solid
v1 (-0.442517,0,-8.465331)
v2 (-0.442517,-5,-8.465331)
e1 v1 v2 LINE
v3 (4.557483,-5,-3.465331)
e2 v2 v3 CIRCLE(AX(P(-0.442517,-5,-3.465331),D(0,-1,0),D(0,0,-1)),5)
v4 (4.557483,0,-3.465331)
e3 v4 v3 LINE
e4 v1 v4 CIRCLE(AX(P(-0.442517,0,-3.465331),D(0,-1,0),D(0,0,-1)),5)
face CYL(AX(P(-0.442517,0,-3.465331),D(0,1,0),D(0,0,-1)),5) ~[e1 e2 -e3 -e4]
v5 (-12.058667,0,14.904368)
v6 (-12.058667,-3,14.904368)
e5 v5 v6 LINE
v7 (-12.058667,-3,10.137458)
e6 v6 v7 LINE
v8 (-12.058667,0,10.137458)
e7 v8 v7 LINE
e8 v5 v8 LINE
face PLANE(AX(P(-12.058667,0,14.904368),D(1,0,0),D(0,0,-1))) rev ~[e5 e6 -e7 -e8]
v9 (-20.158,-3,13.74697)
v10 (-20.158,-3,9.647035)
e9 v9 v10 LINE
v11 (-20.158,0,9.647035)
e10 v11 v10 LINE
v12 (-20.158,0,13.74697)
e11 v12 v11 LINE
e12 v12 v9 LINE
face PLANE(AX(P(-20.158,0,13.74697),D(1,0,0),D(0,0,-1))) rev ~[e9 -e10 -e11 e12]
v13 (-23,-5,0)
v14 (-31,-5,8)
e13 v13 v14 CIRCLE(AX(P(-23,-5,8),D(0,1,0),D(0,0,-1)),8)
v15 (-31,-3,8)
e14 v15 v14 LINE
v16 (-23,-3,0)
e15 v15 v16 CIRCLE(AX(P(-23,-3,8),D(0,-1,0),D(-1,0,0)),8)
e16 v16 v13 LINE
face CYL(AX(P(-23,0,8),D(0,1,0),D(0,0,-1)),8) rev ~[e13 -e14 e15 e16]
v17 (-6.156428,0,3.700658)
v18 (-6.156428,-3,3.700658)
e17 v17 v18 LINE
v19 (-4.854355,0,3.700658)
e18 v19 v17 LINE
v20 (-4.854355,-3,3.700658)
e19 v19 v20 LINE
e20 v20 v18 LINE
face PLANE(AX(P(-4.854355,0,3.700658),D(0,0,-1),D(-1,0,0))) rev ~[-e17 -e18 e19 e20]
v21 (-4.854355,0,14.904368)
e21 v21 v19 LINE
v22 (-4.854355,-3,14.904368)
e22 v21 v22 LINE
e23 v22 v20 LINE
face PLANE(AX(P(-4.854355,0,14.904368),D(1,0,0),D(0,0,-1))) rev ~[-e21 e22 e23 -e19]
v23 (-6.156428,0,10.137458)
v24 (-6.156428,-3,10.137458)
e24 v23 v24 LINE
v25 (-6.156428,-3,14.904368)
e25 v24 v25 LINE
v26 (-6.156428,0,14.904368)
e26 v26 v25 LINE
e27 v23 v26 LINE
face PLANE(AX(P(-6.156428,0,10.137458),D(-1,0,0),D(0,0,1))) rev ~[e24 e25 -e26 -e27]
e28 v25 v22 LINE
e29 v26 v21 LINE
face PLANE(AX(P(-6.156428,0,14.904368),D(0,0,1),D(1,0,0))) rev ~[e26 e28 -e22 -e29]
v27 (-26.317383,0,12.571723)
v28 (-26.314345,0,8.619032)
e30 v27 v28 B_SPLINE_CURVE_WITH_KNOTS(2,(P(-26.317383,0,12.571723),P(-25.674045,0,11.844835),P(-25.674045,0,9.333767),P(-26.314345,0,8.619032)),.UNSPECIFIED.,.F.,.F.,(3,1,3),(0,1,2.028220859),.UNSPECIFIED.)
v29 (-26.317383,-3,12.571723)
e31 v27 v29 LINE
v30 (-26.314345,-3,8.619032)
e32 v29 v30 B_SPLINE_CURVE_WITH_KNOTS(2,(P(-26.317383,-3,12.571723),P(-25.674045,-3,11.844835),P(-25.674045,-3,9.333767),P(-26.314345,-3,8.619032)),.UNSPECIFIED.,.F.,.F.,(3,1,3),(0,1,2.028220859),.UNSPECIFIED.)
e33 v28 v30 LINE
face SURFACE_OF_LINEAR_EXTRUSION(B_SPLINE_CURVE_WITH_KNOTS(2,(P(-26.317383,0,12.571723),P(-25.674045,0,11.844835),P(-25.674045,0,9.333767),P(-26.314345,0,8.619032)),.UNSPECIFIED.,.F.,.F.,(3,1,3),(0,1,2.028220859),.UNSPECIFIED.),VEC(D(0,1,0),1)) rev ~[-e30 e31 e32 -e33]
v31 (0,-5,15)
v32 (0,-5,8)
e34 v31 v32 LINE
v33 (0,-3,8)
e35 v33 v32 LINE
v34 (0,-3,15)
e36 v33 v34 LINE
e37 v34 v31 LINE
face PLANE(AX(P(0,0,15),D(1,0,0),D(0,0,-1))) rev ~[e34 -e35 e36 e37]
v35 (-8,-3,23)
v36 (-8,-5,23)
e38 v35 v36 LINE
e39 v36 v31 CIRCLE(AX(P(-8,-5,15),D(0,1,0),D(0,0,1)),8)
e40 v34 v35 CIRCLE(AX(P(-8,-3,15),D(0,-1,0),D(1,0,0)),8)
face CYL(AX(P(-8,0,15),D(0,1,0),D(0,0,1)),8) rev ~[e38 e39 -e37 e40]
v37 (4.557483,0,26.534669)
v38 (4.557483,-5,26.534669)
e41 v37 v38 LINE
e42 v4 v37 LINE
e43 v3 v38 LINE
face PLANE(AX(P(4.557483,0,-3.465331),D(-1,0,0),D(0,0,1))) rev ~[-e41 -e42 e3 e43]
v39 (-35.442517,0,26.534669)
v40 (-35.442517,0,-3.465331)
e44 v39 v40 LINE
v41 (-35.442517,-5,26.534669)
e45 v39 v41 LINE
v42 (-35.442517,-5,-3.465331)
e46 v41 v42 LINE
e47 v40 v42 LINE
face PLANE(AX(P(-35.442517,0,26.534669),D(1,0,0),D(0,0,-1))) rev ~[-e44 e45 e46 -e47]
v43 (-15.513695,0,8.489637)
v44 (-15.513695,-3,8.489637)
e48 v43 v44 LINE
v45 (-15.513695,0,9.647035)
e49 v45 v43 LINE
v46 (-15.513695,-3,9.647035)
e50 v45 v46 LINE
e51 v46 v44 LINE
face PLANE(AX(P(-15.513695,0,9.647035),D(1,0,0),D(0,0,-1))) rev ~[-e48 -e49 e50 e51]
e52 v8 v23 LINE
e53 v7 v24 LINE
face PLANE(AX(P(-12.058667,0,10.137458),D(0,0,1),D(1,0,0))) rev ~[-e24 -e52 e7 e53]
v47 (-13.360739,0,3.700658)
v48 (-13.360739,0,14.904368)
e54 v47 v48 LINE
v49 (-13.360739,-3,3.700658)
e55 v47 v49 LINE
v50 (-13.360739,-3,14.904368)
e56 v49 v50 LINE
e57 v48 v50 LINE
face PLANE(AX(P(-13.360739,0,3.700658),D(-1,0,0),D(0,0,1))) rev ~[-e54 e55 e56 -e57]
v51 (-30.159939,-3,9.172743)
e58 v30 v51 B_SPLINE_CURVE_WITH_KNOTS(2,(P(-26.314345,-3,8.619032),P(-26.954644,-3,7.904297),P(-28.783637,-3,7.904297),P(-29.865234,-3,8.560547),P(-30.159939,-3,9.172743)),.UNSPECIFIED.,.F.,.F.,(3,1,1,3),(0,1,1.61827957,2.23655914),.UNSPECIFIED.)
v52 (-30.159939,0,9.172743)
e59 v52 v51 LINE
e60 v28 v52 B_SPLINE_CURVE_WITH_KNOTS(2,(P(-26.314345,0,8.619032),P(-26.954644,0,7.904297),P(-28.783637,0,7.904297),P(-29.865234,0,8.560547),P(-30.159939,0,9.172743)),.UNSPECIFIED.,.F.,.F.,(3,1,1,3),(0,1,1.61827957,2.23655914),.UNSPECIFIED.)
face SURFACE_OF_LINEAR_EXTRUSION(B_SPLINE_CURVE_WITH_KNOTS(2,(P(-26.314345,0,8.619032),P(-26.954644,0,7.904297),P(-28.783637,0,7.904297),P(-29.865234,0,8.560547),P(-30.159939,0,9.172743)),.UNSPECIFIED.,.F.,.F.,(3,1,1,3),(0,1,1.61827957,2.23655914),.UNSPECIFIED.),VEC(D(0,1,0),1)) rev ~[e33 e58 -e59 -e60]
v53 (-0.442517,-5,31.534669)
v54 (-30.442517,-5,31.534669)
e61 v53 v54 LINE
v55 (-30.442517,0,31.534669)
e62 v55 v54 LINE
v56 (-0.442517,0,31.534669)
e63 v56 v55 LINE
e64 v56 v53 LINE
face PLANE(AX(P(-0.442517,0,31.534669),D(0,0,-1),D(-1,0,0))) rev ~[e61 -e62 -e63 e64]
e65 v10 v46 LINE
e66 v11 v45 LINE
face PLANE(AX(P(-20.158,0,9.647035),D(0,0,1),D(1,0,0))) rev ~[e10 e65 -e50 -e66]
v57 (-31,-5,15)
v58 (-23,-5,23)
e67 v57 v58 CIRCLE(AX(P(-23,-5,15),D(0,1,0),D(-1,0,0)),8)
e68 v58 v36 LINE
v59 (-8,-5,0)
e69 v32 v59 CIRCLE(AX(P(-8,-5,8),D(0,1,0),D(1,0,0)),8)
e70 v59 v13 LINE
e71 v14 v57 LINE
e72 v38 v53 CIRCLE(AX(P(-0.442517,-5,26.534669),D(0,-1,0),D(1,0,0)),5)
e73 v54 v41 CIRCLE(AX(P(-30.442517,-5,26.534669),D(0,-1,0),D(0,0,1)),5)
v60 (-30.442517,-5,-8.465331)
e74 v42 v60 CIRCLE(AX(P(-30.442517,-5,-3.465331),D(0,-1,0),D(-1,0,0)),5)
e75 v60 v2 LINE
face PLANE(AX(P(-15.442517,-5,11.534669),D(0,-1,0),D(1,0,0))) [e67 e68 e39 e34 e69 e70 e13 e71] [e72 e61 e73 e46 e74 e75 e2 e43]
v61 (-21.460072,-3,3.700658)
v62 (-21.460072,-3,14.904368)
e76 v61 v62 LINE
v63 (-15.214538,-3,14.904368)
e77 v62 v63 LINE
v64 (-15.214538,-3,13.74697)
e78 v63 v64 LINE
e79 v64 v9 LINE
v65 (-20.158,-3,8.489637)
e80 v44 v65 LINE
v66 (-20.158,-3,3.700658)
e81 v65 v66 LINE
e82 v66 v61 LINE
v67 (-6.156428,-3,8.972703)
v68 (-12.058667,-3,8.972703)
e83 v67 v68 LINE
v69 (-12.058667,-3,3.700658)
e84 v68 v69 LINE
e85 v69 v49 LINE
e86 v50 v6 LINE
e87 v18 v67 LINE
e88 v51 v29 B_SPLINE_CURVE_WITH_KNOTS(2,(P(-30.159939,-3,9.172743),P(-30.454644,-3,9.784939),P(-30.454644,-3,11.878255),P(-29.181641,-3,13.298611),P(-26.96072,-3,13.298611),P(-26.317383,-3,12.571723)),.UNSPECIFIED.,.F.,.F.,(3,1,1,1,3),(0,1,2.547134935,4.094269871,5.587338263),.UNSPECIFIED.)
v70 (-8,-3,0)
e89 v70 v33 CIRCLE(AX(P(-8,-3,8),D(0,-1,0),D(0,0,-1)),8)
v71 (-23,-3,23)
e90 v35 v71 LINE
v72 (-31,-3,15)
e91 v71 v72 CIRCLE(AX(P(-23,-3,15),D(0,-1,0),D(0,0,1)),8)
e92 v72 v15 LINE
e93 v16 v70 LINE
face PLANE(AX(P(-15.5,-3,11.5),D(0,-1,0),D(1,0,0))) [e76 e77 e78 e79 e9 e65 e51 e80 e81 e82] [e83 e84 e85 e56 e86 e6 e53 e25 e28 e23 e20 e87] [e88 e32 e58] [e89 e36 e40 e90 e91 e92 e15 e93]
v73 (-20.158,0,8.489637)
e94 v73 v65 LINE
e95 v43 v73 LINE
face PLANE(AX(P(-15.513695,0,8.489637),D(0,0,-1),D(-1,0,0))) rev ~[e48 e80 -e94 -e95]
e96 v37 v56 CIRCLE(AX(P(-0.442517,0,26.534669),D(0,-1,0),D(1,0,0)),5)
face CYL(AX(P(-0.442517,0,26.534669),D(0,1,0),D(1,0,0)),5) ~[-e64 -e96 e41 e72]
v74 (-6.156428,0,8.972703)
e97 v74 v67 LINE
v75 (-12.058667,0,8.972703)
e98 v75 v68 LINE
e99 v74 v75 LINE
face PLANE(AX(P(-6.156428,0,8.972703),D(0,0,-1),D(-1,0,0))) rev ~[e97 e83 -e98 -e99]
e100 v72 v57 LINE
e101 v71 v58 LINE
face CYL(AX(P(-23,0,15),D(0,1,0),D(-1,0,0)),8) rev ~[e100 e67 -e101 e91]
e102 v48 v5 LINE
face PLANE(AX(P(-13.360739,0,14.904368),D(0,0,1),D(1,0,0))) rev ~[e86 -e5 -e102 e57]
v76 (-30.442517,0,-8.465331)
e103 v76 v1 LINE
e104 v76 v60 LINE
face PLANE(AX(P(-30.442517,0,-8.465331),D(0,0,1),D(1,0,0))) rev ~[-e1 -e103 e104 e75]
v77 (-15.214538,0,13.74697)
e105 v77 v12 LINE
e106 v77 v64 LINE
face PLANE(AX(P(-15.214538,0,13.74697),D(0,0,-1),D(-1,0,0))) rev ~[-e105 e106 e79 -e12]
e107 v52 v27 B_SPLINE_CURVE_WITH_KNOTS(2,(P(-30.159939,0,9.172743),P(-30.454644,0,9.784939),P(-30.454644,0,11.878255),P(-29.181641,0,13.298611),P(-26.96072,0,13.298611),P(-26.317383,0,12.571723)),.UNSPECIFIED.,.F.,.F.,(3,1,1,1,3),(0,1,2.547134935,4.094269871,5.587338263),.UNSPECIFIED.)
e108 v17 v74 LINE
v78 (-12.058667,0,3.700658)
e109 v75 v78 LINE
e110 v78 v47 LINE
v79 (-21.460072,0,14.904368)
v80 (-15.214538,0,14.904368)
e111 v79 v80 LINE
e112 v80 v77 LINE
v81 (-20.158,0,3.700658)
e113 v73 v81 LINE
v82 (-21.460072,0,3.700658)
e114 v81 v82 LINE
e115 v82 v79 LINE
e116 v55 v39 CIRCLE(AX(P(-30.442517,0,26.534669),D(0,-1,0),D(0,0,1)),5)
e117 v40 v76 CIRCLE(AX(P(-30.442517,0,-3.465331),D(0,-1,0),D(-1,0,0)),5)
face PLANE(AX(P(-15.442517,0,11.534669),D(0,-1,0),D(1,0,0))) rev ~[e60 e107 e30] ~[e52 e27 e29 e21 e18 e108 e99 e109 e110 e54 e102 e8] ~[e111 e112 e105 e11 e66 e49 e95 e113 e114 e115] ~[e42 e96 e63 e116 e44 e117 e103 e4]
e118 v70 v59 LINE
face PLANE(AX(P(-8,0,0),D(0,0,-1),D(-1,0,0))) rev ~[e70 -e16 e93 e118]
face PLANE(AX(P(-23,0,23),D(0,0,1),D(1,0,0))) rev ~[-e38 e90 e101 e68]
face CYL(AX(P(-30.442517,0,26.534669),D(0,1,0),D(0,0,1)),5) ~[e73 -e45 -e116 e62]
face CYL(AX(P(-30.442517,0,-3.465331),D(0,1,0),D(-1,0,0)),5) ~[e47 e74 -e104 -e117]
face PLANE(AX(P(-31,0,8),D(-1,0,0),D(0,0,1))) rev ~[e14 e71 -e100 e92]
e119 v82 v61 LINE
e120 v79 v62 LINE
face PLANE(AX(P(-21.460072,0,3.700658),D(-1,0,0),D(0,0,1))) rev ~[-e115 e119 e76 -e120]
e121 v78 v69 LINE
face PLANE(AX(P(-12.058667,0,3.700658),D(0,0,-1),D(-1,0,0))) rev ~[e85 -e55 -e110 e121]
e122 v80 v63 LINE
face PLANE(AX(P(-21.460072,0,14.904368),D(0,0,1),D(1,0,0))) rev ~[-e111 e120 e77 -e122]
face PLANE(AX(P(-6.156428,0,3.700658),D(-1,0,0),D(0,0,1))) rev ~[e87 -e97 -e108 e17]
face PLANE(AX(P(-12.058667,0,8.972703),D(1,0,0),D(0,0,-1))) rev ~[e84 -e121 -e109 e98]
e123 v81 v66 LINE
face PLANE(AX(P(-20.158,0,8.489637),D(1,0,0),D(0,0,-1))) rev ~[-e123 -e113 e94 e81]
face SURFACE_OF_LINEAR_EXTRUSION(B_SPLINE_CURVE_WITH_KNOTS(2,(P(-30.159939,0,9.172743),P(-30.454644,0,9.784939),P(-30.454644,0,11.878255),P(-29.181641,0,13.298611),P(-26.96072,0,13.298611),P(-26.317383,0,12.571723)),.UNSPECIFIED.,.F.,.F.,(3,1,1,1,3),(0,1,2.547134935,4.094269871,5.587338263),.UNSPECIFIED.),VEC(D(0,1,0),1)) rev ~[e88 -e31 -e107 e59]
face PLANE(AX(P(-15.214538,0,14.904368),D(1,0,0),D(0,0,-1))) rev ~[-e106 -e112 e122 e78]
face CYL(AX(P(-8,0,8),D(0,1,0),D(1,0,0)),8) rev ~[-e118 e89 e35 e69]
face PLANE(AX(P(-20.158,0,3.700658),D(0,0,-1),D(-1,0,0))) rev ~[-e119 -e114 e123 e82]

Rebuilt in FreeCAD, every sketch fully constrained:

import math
import FreeCAD as App
import Part
import Sketcher

V = App.Vector
Q = App.Units.Quantity

doc = App.newDocument("Part")
body = doc.addObject("PartDesign::Body", "Body")

# Sketch on XZ plane
sketch1 = body.newObject("Sketcher::SketchObject", "Sketch")
sketch1.AttachmentSupport = (doc.getObject("XZ_Plane"), [""])
sketch1.MapMode = "FlatFace"
sketch1.addGeometry([
    Part.LineSegment(V(-23, 0, 0), V(-8, 0, 0)),  # 0
    Part.ArcOfCircle(Part.Circle(V(-8, 8, 0), V(0, 0, 1), 8), math.radians(-90), math.radians(0)),  # 1
    Part.LineSegment(V(0, 8, 0), V(0, 15, 0)),  # 2
    Part.ArcOfCircle(Part.Circle(V(-8, 15, 0), V(0, 0, 1), 8), math.radians(0), math.radians(90)),  # 3
    Part.LineSegment(V(-8, 23, 0), V(-23, 23, 0)),  # 4
    Part.ArcOfCircle(Part.Circle(V(-23, 15, 0), V(0, 0, 1), 8), math.radians(90), math.radians(180)),  # 5
    Part.LineSegment(V(-31, 15, 0), V(-31, 8, 0)),  # 6
    Part.ArcOfCircle(Part.Circle(V(-23, 8, 0), V(0, 0, 1), 8), math.radians(180), math.radians(270)),  # 7
    Part.BSplineCurve([V(-30.159939, 9.172743, 0), V(-30.454644, 9.784939, 0), V(-30.454644, 11.878255, 0), V(-29.181641, 13.298611, 0), V(-26.96072, 13.298611, 0), V(-26.317383, 12.571723, 0)], [3, 1, 1, 1, 3], [0, 1, 2.547134935, 4.094269871, 5.587338263], False, 2, [1, 1, 1, 1, 1, 1], False),  # 8
    Part.BSplineCurve([V(-26.317383, 12.571723, 0), V(-25.674045, 11.844835, 0), V(-25.674045, 9.333767, 0), V(-26.314345, 8.619032, 0)], [3, 1, 3], [0, 1, 2.028220859], False, 2, [1, 1, 1, 1], False),  # 9
    Part.BSplineCurve([V(-26.314345, 8.619032, 0), V(-26.954644, 7.904297, 0), V(-28.783637, 7.904297, 0), V(-29.865234, 8.560547, 0), V(-30.159939, 9.172743, 0)], [3, 1, 1, 3], [0, 1, 1.61827957, 2.23655914], False, 2, [1, 1, 1, 1, 1], False),  # 10
    Part.LineSegment(V(-15.513695, 8.489637, 0), V(-20.158, 8.489637, 0)),  # 11
    Part.LineSegment(V(-20.158, 8.489637, 0), V(-20.158, 3.700658, 0)),  # 12
    Part.LineSegment(V(-20.158, 3.700658, 0), V(-21.460072, 3.700658, 0)),  # 13
    Part.LineSegment(V(-21.460072, 3.700658, 0), V(-21.460072, 14.904368, 0)),  # 14
    Part.LineSegment(V(-21.460072, 14.904368, 0), V(-15.214538, 14.904368, 0)),  # 15
    Part.LineSegment(V(-15.214538, 14.904368, 0), V(-15.214538, 13.74697, 0)),  # 16
    Part.LineSegment(V(-15.214538, 13.74697, 0), V(-20.158, 13.74697, 0)),  # 17
    Part.LineSegment(V(-20.158, 13.74697, 0), V(-20.158, 9.647035, 0)),  # 18
    Part.LineSegment(V(-20.158, 9.647035, 0), V(-15.513695, 9.647035, 0)),  # 19
    Part.LineSegment(V(-15.513695, 9.647035, 0), V(-15.513695, 8.489637, 0)),  # 20
    Part.LineSegment(V(-6.156428, 14.904368, 0), V(-4.854355, 14.904368, 0)),  # 21
    Part.LineSegment(V(-4.854355, 14.904368, 0), V(-4.854355, 3.700658, 0)),  # 22
    Part.LineSegment(V(-4.854355, 3.700658, 0), V(-6.156428, 3.700658, 0)),  # 23
    Part.LineSegment(V(-6.156428, 3.700658, 0), V(-6.156428, 8.972703, 0)),  # 24
    Part.LineSegment(V(-6.156428, 8.972703, 0), V(-12.058667, 8.972703, 0)),  # 25
    Part.LineSegment(V(-12.058667, 8.972703, 0), V(-12.058667, 3.700658, 0)),  # 26
    Part.LineSegment(V(-12.058667, 3.700658, 0), V(-13.360739, 3.700658, 0)),  # 27
    Part.LineSegment(V(-13.360739, 3.700658, 0), V(-13.360739, 14.904368, 0)),  # 28
    Part.LineSegment(V(-13.360739, 14.904368, 0), V(-12.058667, 14.904368, 0)),  # 29
    Part.LineSegment(V(-12.058667, 14.904368, 0), V(-12.058667, 10.137458, 0)),  # 30
    Part.LineSegment(V(-12.058667, 10.137458, 0), V(-6.156428, 10.137458, 0)),  # 31
    Part.LineSegment(V(-6.156428, 10.137458, 0), V(-6.156428, 14.904368, 0)),  # 32
], False)
sketch1.addConstraint([
    Sketcher.Constraint("Block", 8),
    Sketcher.Constraint("Block", 9),
    Sketcher.Constraint("Block", 10),
    Sketcher.Constraint("Tangent", 0, 2, 1, 1),
    Sketcher.Constraint("Tangent", 1, 2, 2, 1),
    Sketcher.Constraint("Tangent", 2, 2, 3, 1),
    Sketcher.Constraint("Tangent", 3, 2, 4, 1),
    Sketcher.Constraint("Tangent", 4, 2, 5, 1),
    Sketcher.Constraint("Tangent", 5, 2, 6, 1),
    Sketcher.Constraint("Tangent", 6, 2, 7, 1),
    Sketcher.Constraint("Tangent", 7, 2, 0, 1),
    Sketcher.Constraint("Coincident", 11, 2, 12, 1),
    Sketcher.Constraint("Coincident", 12, 2, 13, 1),
    Sketcher.Constraint("Coincident", 13, 2, 14, 1),
    Sketcher.Constraint("Coincident", 14, 2, 15, 1),
    Sketcher.Constraint("Coincident", 15, 2, 16, 1),
    Sketcher.Constraint("Coincident", 16, 2, 17, 1),
    Sketcher.Constraint("Coincident", 17, 2, 18, 1),
    Sketcher.Constraint("Coincident", 18, 2, 19, 1),
    Sketcher.Constraint("Coincident", 19, 2, 20, 1),
    Sketcher.Constraint("Coincident", 20, 2, 11, 1),
    Sketcher.Constraint("Coincident", 21, 2, 22, 1),
    Sketcher.Constraint("Coincident", 22, 2, 23, 1),
    Sketcher.Constraint("Coincident", 23, 2, 24, 1),
    Sketcher.Constraint("Coincident", 24, 2, 25, 1),
    Sketcher.Constraint("Coincident", 25, 2, 26, 1),
    Sketcher.Constraint("Coincident", 26, 2, 27, 1),
    Sketcher.Constraint("Coincident", 27, 2, 28, 1),
    Sketcher.Constraint("Coincident", 28, 2, 29, 1),
    Sketcher.Constraint("Coincident", 29, 2, 30, 1),
    Sketcher.Constraint("Coincident", 30, 2, 31, 1),
    Sketcher.Constraint("Coincident", 31, 2, 32, 1),
    Sketcher.Constraint("Coincident", 32, 2, 21, 1),
    Sketcher.Constraint("Horizontal", 0),
    Sketcher.Constraint("Vertical", 2),
    Sketcher.Constraint("Horizontal", 4),
    Sketcher.Constraint("Vertical", 6),
    Sketcher.Constraint("Horizontal", 11),
    Sketcher.Constraint("Vertical", 12),
    Sketcher.Constraint("Horizontal", 13),
    Sketcher.Constraint("Vertical", 14),
    Sketcher.Constraint("Horizontal", 15),
    Sketcher.Constraint("Vertical", 16),
    Sketcher.Constraint("Horizontal", 17),
    Sketcher.Constraint("Vertical", 18),
    Sketcher.Constraint("Horizontal", 19),
    Sketcher.Constraint("Vertical", 20),
    Sketcher.Constraint("Horizontal", 21),
    Sketcher.Constraint("Vertical", 22),
    Sketcher.Constraint("Horizontal", 23),
    Sketcher.Constraint("Vertical", 24),
    Sketcher.Constraint("Horizontal", 25),
    Sketcher.Constraint("Vertical", 26),
    Sketcher.Constraint("Horizontal", 27),
    Sketcher.Constraint("Vertical", 28),
    Sketcher.Constraint("Horizontal", 29),
    Sketcher.Constraint("Vertical", 30),
    Sketcher.Constraint("Horizontal", 31),
    Sketcher.Constraint("Vertical", 32),
    Sketcher.Constraint("Equal", 1, 3),
    Sketcher.Constraint("Equal", 3, 5),
    Sketcher.Constraint("Equal", 5, 7),
    Sketcher.Constraint("PointOnObject", 0, 2, -1),
    Sketcher.Constraint("PointOnObject", 1, 2, -2),
    Sketcher.Constraint("Horizontal", 15, 2, 21, 2),
    Sketcher.Constraint("Horizontal", 13, 2, 22, 2),
    Sketcher.Constraint("Horizontal", 23, 2, 26, 2),
    Sketcher.Constraint("Horizontal", 21, 2, 28, 2),
    Sketcher.Constraint("Vertical", 12, 2, 17, 2),
    Sketcher.Constraint("Vertical", 26, 2, 29, 2),
    Sketcher.Constraint("Vertical", 24, 2, 31, 2),
    Sketcher.Constraint("Equal", 13, 21),
    Sketcher.Constraint("Equal", 23, 27),
    Sketcher.Constraint("Equal", 16, 20),
    Sketcher.Constraint("Radius", 1, Q("8 mm")),
    Sketcher.Constraint("DistanceX", 0, 1, 0, 2, Q("15 mm")),
    Sketcher.Constraint("DistanceY", 2, 1, 2, 2, Q("7 mm")),
    Sketcher.Constraint("DistanceX", 11, 2, -1, 1, Q("20.158 mm")),
    Sketcher.Constraint("DistanceX", 25, 2, 25, 1, Q("5.902239 mm")),
    Sketcher.Constraint("DistanceY", 12, 2, 12, 1, Q("4.788979 mm")),
    Sketcher.Constraint("DistanceY", 14, 1, 14, 2, Q("11.20371 mm")),
    Sketcher.Constraint("DistanceY", 30, 2, 30, 1, Q("4.76691 mm")),
    Sketcher.Constraint("DistanceX", 15, 2, 28, 2, Q("1.853798 mm")),
    Sketcher.Constraint("DistanceX", 11, 2, 11, 1, Q("4.644304 mm")),
    Sketcher.Constraint("DistanceX", 13, 2, 13, 1, Q("1.302073 mm")),
    Sketcher.Constraint("DistanceX", 15, 1, 15, 2, Q("6.245535 mm")),
    Sketcher.Constraint("DistanceY", 16, 2, 16, 1, Q("1.157398 mm")),
    Sketcher.Constraint("DistanceY", 24, 1, 24, 2, Q("5.272045 mm")),
    Sketcher.Constraint("DistanceY", -1, 1, 16, 2, Q("13.74697 mm")),
])
pad1 = body.newObject("PartDesign::Pad", "Pad")
pad1.Profile = sketch1
pad1.Length = 3

# Sketch on XZ plane
sketch2 = body.newObject("Sketcher::SketchObject", "Sketch001")
sketch2.AttachmentSupport = (doc.getObject("XZ_Plane"), [""])
sketch2.MapMode = "FlatFace"
sketch2.addGeometry([
    Part.LineSegment(V(-0.442517, 31.534669, 0), V(-30.442517, 31.534669, 0)),  # 0
    Part.ArcOfCircle(Part.Circle(V(-30.442517, 26.534669, 0), V(0, 0, 1), 5), math.radians(90), math.radians(180)),  # 1
    Part.LineSegment(V(-35.442517, 26.534669, 0), V(-35.442517, -3.465331, 0)),  # 2
    Part.ArcOfCircle(Part.Circle(V(-30.442517, -3.465331, 0), V(0, 0, 1), 5), math.radians(180), math.radians(270)),  # 3
    Part.LineSegment(V(-30.442517, -8.465331, 0), V(-0.442517, -8.465331, 0)),  # 4
    Part.ArcOfCircle(Part.Circle(V(-0.442517, -3.465331, 0), V(0, 0, 1), 5), math.radians(-90), math.radians(0)),  # 5
    Part.LineSegment(V(4.557483, -3.465331, 0), V(4.557483, 26.534669, 0)),  # 6
    Part.ArcOfCircle(Part.Circle(V(-0.442517, 26.534669, 0), V(0, 0, 1), 5), math.radians(0), math.radians(90)),  # 7
    Part.LineSegment(V(0, 15, 0), V(0, 8, 0)),  # 8
    Part.ArcOfCircle(Part.Circle(V(-8, 8, 0), V(0, 0, 1), 8), math.radians(-90), math.radians(0)),  # 9
    Part.LineSegment(V(-8, 0, 0), V(-23, 0, 0)),  # 10
    Part.ArcOfCircle(Part.Circle(V(-23, 8, 0), V(0, 0, 1), 8), math.radians(180), math.radians(270)),  # 11
    Part.LineSegment(V(-31, 8, 0), V(-31, 15, 0)),  # 12
    Part.ArcOfCircle(Part.Circle(V(-23, 15, 0), V(0, 0, 1), 8), math.radians(90), math.radians(180)),  # 13
    Part.LineSegment(V(-23, 23, 0), V(-8, 23, 0)),  # 14
    Part.ArcOfCircle(Part.Circle(V(-8, 15, 0), V(0, 0, 1), 8), math.radians(0), math.radians(90)),  # 15
], False)
sketch2.addConstraint([
    Sketcher.Constraint("Tangent", 0, 2, 1, 1),
    Sketcher.Constraint("Tangent", 1, 2, 2, 1),
    Sketcher.Constraint("Tangent", 2, 2, 3, 1),
    Sketcher.Constraint("Tangent", 3, 2, 4, 1),
    Sketcher.Constraint("Tangent", 4, 2, 5, 1),
    Sketcher.Constraint("Tangent", 5, 2, 6, 1),
    Sketcher.Constraint("Tangent", 6, 2, 7, 1),
    Sketcher.Constraint("Tangent", 7, 2, 0, 1),
    Sketcher.Constraint("Tangent", 8, 2, 9, 2),
    Sketcher.Constraint("Tangent", 9, 1, 10, 1),
    Sketcher.Constraint("Tangent", 10, 2, 11, 2),
    Sketcher.Constraint("Tangent", 11, 1, 12, 1),
    Sketcher.Constraint("Tangent", 12, 2, 13, 2),
    Sketcher.Constraint("Tangent", 13, 1, 14, 1),
    Sketcher.Constraint("Tangent", 14, 2, 15, 2),
    Sketcher.Constraint("Tangent", 15, 1, 8, 1),
    Sketcher.Constraint("Horizontal", 0),
    Sketcher.Constraint("Vertical", 2),
    Sketcher.Constraint("Horizontal", 4),
    Sketcher.Constraint("Vertical", 6),
    Sketcher.Constraint("Vertical", 8),
    Sketcher.Constraint("Horizontal", 10),
    Sketcher.Constraint("Vertical", 12),
    Sketcher.Constraint("Horizontal", 14),
    Sketcher.Constraint("Equal", 1, 3),
    Sketcher.Constraint("Equal", 3, 5),
    Sketcher.Constraint("Equal", 5, 7),
    Sketcher.Constraint("Equal", 9, 11),
    Sketcher.Constraint("Equal", 11, 13),
    Sketcher.Constraint("Equal", 13, 15),
    Sketcher.Constraint("PointOnObject", 8, 2, -2),
    Sketcher.Constraint("PointOnObject", 9, 1, -1),
    Sketcher.Constraint("Equal", 4, 2),
    Sketcher.Constraint("Radius", 1, Q("5 mm")),
    Sketcher.Constraint("Radius", 9, Q("8 mm")),
    Sketcher.Constraint("DistanceX", 0, 2, 0, 1, Q("30 mm")),
    Sketcher.Constraint("DistanceX", 10, 2, 10, 1, Q("15 mm")),
    Sketcher.Constraint("DistanceY", 8, 2, 8, 1, Q("7 mm")),
    Sketcher.Constraint("DistanceY", -1, 1, 1, 3, Q("26.534669 mm")),
    Sketcher.Constraint("DistanceX", 1, 3, -1, 1, Q("30.442517 mm")),
])
pad2 = body.newObject("PartDesign::Pad", "Pad001")
pad2.Profile = sketch2
pad2.Length = 5

doc.recompute()
